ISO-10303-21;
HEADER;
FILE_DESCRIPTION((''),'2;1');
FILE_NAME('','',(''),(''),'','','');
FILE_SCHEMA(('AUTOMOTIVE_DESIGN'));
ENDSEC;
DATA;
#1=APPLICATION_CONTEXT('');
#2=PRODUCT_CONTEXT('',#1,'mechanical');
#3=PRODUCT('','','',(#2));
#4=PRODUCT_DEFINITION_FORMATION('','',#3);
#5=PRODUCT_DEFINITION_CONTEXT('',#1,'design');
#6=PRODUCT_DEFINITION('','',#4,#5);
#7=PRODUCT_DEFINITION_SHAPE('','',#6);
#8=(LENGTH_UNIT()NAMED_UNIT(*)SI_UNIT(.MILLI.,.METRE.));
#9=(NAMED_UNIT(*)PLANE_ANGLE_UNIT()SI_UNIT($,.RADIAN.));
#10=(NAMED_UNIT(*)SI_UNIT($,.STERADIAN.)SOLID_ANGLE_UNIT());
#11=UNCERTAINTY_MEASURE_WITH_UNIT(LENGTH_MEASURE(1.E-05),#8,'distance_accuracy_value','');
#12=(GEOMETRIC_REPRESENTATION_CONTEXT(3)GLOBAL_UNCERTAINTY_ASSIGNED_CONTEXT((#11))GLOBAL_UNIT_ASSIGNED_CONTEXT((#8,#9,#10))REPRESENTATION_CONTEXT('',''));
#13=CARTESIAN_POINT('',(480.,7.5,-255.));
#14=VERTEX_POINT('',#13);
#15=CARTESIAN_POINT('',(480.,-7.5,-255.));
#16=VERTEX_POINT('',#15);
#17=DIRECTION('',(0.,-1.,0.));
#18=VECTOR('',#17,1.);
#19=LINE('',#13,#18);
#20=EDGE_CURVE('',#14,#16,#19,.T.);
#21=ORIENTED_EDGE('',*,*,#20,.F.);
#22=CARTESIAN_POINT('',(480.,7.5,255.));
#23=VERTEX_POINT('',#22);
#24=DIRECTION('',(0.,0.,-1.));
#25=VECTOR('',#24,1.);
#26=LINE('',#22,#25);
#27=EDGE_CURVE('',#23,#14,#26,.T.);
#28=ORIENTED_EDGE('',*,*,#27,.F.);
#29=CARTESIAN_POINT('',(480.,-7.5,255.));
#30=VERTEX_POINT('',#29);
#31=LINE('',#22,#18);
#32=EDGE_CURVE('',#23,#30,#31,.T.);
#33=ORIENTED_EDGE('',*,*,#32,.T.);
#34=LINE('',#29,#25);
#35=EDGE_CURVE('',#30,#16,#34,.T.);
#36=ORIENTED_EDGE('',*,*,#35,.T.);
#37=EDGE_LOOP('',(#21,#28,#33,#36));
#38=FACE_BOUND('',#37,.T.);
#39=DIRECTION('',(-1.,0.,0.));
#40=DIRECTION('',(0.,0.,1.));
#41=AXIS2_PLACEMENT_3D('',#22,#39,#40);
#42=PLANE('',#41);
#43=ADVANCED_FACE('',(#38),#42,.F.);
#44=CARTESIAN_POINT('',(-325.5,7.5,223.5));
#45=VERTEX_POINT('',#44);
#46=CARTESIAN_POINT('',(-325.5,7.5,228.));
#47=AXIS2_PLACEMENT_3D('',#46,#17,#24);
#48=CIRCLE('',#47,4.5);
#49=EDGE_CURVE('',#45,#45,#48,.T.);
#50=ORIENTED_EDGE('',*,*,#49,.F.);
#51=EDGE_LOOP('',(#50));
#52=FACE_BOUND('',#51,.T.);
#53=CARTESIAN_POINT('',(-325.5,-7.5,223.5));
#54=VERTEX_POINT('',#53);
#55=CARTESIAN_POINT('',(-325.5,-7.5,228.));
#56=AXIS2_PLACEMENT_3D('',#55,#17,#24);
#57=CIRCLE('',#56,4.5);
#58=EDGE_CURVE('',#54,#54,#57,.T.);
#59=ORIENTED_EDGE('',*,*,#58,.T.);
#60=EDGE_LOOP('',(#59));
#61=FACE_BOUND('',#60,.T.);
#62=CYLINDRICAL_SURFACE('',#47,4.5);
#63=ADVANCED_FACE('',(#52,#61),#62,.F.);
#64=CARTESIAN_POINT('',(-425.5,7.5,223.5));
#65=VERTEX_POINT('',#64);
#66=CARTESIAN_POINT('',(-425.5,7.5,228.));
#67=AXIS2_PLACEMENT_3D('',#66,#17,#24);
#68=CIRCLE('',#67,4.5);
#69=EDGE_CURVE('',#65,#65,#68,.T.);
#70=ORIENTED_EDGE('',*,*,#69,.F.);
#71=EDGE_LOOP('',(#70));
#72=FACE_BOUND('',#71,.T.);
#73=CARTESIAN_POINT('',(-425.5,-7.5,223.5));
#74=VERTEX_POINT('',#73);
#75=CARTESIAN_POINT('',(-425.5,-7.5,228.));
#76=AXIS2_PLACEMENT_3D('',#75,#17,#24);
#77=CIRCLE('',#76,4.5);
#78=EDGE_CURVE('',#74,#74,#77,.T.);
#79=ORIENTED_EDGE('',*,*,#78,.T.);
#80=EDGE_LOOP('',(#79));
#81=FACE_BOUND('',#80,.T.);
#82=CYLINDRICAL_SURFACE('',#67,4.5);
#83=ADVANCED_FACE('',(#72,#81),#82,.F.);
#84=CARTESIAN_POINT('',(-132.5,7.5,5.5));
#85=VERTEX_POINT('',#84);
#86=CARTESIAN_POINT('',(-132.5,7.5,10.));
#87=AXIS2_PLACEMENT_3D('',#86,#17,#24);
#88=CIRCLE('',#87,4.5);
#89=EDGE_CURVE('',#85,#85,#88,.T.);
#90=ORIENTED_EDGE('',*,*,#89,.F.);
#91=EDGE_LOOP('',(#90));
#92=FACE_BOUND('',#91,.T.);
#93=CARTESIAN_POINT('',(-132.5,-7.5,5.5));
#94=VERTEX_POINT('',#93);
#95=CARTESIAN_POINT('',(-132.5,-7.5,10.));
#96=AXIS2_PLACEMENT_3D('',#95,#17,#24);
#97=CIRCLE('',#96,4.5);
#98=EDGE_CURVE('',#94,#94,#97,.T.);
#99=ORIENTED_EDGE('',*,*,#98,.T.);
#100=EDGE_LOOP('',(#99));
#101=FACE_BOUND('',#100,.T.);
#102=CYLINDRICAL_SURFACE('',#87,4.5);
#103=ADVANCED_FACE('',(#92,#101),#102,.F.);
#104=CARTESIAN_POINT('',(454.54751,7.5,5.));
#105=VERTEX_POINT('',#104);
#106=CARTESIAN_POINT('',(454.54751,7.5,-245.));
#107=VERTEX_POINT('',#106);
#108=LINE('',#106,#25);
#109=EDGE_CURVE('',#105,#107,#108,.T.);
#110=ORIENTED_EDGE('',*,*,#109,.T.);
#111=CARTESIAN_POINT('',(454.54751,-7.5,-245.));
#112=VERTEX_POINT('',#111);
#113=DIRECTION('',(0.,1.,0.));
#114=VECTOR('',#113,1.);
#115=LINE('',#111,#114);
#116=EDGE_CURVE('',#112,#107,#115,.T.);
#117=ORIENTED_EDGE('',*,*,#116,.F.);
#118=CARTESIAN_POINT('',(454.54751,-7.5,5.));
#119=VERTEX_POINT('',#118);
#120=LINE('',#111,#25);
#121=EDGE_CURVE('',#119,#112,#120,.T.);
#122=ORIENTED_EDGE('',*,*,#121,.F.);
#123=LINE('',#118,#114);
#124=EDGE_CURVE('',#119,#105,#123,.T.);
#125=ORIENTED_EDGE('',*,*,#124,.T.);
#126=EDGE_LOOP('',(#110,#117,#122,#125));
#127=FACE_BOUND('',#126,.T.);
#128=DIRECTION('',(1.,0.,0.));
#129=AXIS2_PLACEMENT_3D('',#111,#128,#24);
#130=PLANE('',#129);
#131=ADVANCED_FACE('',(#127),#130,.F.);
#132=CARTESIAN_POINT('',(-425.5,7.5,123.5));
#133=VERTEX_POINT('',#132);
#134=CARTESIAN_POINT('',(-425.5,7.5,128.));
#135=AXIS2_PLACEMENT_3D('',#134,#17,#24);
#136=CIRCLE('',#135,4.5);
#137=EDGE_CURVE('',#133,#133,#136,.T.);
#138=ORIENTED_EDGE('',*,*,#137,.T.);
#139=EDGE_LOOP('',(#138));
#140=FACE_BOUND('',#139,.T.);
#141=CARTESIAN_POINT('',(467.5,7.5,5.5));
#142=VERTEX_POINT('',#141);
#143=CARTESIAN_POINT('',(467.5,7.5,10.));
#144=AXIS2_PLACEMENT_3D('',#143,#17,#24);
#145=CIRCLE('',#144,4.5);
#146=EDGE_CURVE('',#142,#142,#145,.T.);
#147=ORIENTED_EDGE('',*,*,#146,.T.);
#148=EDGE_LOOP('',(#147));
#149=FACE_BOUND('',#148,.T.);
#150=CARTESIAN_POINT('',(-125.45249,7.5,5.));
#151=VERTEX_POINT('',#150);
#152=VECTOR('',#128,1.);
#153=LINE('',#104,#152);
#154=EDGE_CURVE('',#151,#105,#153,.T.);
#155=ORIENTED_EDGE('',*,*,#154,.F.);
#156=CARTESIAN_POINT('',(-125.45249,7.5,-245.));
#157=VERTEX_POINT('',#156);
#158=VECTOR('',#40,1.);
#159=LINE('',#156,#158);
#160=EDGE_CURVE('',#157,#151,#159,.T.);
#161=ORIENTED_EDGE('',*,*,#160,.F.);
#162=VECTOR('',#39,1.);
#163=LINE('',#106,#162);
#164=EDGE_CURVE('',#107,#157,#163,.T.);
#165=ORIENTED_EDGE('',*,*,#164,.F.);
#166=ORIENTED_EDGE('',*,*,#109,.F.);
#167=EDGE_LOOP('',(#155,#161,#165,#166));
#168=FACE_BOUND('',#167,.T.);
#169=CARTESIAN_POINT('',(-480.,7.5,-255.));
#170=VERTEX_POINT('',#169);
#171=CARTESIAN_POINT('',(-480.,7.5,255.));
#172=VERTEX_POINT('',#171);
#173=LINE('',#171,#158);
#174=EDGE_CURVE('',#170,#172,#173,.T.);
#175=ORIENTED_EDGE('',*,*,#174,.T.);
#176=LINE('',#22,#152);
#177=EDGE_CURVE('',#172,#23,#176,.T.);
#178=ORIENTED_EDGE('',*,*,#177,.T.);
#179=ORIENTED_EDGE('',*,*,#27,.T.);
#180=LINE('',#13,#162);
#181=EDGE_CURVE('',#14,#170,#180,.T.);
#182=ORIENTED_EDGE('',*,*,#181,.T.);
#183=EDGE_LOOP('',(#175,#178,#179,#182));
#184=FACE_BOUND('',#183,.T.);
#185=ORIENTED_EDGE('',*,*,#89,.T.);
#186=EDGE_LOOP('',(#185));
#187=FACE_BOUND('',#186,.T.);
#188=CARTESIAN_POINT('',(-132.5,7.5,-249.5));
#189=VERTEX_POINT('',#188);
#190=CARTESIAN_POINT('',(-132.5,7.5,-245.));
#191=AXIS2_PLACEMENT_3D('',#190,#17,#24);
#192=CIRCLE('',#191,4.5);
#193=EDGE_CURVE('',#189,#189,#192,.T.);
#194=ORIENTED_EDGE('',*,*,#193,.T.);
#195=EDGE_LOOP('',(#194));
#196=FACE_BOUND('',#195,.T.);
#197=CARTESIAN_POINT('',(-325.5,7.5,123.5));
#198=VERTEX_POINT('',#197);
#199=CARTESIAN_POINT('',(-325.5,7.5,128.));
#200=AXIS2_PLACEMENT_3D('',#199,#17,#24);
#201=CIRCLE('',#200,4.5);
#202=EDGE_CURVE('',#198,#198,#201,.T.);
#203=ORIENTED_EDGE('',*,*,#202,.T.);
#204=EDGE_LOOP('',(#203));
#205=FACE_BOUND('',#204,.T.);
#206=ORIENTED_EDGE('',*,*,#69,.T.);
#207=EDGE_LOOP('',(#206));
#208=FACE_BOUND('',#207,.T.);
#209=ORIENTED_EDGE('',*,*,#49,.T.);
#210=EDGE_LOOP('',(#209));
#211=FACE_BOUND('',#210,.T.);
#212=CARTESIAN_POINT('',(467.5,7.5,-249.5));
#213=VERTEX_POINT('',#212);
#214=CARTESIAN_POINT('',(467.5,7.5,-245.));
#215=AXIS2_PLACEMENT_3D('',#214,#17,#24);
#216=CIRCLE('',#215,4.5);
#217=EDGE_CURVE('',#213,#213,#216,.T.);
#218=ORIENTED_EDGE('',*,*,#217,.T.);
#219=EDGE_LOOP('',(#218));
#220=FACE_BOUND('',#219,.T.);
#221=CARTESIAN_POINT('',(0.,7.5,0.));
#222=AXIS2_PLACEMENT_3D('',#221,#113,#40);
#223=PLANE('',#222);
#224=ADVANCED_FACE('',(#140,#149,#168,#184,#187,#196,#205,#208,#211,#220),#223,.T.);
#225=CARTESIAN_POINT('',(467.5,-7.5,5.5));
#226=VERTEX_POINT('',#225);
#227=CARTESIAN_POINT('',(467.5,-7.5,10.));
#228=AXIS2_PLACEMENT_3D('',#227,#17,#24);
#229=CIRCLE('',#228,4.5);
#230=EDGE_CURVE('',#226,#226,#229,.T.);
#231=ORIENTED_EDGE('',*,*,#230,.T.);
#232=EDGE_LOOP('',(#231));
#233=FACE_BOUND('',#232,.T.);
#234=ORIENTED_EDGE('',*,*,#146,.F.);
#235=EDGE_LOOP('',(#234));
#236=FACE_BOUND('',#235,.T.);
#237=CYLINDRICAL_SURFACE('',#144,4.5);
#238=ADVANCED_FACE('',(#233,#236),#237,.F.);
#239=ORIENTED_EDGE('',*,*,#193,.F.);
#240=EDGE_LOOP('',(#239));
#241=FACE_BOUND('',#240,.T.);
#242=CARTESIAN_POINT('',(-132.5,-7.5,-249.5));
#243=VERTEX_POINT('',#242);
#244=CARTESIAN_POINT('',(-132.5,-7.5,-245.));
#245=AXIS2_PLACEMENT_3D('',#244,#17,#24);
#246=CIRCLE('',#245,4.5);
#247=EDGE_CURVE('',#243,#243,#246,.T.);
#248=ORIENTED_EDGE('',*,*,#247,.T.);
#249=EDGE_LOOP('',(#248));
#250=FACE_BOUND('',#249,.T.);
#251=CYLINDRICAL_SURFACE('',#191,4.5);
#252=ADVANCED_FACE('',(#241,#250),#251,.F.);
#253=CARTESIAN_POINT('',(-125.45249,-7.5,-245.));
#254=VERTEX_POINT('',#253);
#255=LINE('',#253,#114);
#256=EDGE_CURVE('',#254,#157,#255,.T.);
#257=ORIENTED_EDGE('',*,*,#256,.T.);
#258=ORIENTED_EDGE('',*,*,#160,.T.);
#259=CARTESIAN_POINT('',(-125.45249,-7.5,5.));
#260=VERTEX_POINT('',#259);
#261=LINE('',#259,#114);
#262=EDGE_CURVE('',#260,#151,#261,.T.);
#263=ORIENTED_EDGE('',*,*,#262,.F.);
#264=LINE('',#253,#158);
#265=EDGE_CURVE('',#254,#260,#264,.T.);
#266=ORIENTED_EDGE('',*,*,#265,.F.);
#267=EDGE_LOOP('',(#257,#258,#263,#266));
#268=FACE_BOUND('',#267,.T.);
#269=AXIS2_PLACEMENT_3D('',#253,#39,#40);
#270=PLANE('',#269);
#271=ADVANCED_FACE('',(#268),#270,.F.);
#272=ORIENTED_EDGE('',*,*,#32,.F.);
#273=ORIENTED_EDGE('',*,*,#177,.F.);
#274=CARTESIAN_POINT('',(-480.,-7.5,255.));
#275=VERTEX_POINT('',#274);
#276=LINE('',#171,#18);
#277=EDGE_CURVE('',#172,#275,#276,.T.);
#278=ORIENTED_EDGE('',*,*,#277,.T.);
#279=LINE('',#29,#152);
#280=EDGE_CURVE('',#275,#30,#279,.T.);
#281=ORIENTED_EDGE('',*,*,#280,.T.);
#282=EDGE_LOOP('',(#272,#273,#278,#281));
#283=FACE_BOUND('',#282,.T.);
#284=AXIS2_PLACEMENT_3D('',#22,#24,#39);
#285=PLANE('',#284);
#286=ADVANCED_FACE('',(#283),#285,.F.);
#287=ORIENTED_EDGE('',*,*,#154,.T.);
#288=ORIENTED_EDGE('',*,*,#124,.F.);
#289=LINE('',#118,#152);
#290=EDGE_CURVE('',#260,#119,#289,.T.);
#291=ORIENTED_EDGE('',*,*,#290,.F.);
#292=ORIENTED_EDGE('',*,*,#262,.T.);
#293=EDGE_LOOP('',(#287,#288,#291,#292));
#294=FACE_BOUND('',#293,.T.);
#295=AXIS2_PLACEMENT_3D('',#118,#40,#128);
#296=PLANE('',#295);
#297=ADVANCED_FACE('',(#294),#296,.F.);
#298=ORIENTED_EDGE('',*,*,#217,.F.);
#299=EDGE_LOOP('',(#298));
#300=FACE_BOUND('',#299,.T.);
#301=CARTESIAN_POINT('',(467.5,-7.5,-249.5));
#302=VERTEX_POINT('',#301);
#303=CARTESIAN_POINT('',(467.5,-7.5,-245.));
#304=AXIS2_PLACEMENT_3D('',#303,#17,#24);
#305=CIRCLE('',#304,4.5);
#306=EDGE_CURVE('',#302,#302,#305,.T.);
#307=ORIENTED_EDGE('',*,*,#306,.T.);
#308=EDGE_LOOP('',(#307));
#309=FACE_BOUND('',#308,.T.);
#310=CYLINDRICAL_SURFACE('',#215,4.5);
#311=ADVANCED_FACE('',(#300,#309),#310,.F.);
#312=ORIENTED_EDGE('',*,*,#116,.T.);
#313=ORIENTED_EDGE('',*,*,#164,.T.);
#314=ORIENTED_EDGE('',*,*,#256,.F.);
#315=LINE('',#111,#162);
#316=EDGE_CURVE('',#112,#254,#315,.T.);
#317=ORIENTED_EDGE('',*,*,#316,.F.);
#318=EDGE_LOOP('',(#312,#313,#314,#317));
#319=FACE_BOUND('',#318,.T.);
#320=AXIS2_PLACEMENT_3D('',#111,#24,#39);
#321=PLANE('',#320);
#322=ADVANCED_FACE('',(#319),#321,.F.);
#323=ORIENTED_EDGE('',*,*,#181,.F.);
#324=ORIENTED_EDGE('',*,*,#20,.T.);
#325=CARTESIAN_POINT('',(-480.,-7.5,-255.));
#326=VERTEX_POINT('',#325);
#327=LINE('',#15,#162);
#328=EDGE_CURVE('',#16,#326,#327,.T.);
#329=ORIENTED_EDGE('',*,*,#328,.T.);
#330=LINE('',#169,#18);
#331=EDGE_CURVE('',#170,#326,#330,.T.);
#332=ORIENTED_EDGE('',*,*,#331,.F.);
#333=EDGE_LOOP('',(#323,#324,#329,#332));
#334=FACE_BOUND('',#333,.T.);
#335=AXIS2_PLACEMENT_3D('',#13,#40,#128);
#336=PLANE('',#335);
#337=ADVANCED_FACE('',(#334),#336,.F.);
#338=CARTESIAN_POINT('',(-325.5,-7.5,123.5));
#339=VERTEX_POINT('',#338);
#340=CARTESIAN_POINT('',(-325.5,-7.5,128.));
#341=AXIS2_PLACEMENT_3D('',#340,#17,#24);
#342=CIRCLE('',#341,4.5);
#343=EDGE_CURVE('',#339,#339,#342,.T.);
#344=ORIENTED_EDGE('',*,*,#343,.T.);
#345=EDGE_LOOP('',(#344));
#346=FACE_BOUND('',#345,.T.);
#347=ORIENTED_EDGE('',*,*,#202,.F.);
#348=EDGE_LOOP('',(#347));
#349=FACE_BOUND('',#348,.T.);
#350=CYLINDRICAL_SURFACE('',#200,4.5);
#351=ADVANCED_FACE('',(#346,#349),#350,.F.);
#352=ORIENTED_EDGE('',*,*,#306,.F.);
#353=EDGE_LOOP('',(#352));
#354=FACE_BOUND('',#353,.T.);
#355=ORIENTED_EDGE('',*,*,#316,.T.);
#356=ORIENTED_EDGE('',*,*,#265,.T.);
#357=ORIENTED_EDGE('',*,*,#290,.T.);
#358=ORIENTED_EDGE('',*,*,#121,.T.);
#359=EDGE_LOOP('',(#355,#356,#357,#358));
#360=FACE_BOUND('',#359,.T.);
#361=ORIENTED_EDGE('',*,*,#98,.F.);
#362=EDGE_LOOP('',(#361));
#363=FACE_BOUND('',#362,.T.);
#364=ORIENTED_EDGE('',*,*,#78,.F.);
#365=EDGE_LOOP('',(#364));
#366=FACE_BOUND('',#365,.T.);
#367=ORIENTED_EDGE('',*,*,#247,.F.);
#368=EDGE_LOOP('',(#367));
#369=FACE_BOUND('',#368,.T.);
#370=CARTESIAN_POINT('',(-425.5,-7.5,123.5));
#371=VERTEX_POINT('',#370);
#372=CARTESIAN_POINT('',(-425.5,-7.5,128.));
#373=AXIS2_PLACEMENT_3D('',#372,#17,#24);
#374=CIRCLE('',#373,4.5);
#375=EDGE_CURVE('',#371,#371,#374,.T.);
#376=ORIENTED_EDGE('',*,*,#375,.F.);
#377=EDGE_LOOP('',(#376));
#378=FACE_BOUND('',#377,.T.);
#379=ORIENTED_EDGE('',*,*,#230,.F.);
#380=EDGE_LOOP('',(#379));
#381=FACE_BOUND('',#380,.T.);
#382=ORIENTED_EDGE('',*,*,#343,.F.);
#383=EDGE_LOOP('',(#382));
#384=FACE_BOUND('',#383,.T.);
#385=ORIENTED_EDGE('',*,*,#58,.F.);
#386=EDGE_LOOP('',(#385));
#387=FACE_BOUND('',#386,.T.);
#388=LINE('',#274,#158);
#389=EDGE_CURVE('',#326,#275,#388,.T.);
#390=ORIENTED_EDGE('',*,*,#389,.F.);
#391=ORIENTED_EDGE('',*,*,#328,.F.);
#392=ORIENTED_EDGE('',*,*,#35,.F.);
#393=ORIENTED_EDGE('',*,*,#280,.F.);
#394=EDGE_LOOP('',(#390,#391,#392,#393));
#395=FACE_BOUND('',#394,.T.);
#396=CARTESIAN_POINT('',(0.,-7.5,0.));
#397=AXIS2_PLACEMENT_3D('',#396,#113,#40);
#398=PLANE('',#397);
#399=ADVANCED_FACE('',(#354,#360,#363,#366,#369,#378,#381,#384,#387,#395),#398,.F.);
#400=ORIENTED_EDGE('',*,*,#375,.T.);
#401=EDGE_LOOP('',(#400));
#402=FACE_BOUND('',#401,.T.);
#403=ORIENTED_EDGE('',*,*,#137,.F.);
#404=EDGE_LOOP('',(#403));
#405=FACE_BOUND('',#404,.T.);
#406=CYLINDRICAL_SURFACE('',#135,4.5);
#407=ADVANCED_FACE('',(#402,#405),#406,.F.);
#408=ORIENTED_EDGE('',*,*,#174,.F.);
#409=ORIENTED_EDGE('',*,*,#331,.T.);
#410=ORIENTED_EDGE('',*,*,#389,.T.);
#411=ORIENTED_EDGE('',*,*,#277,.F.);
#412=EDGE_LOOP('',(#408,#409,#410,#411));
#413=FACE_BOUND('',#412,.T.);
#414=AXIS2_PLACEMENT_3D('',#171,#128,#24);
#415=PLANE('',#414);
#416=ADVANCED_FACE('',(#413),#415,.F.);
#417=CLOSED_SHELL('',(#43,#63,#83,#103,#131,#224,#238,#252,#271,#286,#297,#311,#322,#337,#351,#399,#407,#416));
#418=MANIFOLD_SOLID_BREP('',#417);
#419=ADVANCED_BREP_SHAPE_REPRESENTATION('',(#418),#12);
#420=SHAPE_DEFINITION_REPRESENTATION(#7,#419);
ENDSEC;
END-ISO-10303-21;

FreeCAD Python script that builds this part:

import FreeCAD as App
import Part
import Sketcher
from FreeCAD import Vector


def add_polygon(sketch, points):
    """Adds a closed chain of lines whose ends are joined by coincident constraints."""
    first, n = sketch.GeometryCount, len(points)
    for a, b in zip(points, points[1:] + points[:1]):
        sketch.addGeometry(Part.LineSegment(App.Vector(*a, 0), App.Vector(*b, 0)), False)
    for i in range(n):
        sketch.addConstraint(Sketcher.Constraint("Coincident", first + i, 2, first + (i + 1) % n, 1))

doc = App.newDocument("Part")
body = doc.addObject("PartDesign::Body", "Body")

sketch1 = doc.addObject("Sketcher::SketchObject", "Sketch")
body.addObject(sketch1)
sketch1.AttachmentSupport = (doc.XZ_Plane, [""])
sketch1.MapMode = "FlatFace"
add_polygon(sketch1, [(-480, -255), (-480, 255), (480, 255), (480, -255)])
sketch1.addConstraint(Sketcher.Constraint("Vertical", 0))
sketch1.addConstraint(Sketcher.Constraint("Horizontal", 1))
sketch1.addConstraint(Sketcher.Constraint("Vertical", 2))
sketch1.addConstraint(Sketcher.Constraint("Horizontal", 3))
sketch1.addConstraint(Sketcher.Constraint("Symmetric", 0, 2, 2, 2, -1, 1))
sketch1.addConstraint(Sketcher.Constraint("DistanceX", 1, 1, 1, 2, 960.0))
sketch1.addConstraint(Sketcher.Constraint("DistanceY", 0, 1, 0, 2, 510.0))
pad1 = doc.addObject("PartDesign::Pad", "Pad")
body.addObject(pad1)
pad1.Profile = sketch1
pad1.Length = 15
pad1.Midplane = True

sketch2 = doc.addObject("Sketcher::SketchObject", "Sketch001")
body.addObject(sketch2)
sketch2.AttachmentSupport = (doc.XZ_Plane, [""])
sketch2.MapMode = "FlatFace"
sketch2.AttachmentOffset = App.Placement(Vector(0, 0, -7.5), App.Rotation())
add_polygon(sketch2, [(-125, -245), (-125, 5), (455, 5), (455, -245)])
sketch2.addConstraint(Sketcher.Constraint("Vertical", 0))
sketch2.addConstraint(Sketcher.Constraint("Horizontal", 1))
sketch2.addConstraint(Sketcher.Constraint("Vertical", 2))
sketch2.addConstraint(Sketcher.Constraint("Horizontal", 3))
sketch2.addConstraint(Sketcher.Constraint("DistanceX", 1, 1, 1, 2, 580.0))
sketch2.addConstraint(Sketcher.Constraint("DistanceY", 0, 1, 0, 2, 250.0))
sketch2.addConstraint(Sketcher.Constraint("DistanceY", -1, 1, 0, 2, 5.0))
sketch2.addConstraint(Sketcher.Constraint("DistanceX", 0, 2, -1, 1, 125.45249))
pocket1 = doc.addObject("PartDesign::Pocket", "Pocket")
body.addObject(pocket1)
pocket1.Profile = sketch2
pocket1.Type = "ThroughAll"
pocket1.Reversed = True

sketch3 = doc.addObject("Sketcher::SketchObject", "Sketch002")
body.addObject(sketch3)
sketch3.AttachmentSupport = (doc.XZ_Plane, [""])
sketch3.MapMode = "FlatFace"
sketch3.AttachmentOffset = App.Placement(Vector(0, 0, 7.5), App.Rotation())
sketch3.addGeometry(Part.Circle(Vector(-425.5, 228, 0), Vector(0, 0, 1), 4.5), False)
sketch3.addGeometry(Part.Circle(Vector(-425.5, 128, 0), Vector(0, 0, 1), 4.5), False)
sketch3.addGeometry(Part.Circle(Vector(-325.5, 128, 0), Vector(0, 0, 1), 4.5), False)
sketch3.addGeometry(Part.Circle(Vector(-325.5, 228, 0), Vector(0, 0, 1), 4.5), False)
sketch3.addGeometry(Part.Circle(Vector(-132.5, 10, 0), Vector(0, 0, 1), 4.5), False)
sketch3.addGeometry(Part.Circle(Vector(-132.5, -245, 0), Vector(0, 0, 1), 4.5), False)
sketch3.addGeometry(Part.Circle(Vector(467.5, -245, 0), Vector(0, 0, 1), 4.5), False)
sketch3.addGeometry(Part.Circle(Vector(467.5, 10, 0), Vector(0, 0, 1), 4.5), False)
sketch3.addConstraint(Sketcher.Constraint("Equal", 0, 1))
sketch3.addConstraint(Sketcher.Constraint("Equal", 1, 2))
sketch3.addConstraint(Sketcher.Constraint("Equal", 2, 3))
sketch3.addConstraint(Sketcher.Constraint("Equal", 3, 4))
sketch3.addConstraint(Sketcher.Constraint("Equal", 4, 5))
sketch3.addConstraint(Sketcher.Constraint("Equal", 5, 6))
sketch3.addConstraint(Sketcher.Constraint("Equal", 6, 7))
sketch3.addConstraint(Sketcher.Constraint("Horizontal", 1, 3, 2, 3))
sketch3.addConstraint(Sketcher.Constraint("Horizontal", 0, 3, 3, 3))
sketch3.addConstraint(Sketcher.Constraint("Horizontal", 5, 3, 6, 3))
sketch3.addConstraint(Sketcher.Constraint("Horizontal", 4, 3, 7, 3))
sketch3.addConstraint(Sketcher.Constraint("Vertical", 0, 3, 1, 3))
sketch3.addConstraint(Sketcher.Constraint("Vertical", 2, 3, 3, 3))
sketch3.addConstraint(Sketcher.Constraint("Vertical", 4, 3, 5, 3))
sketch3.addConstraint(Sketcher.Constraint("Vertical", 6, 3, 7, 3))
sketch3.addConstraint(Sketcher.Constraint("Diameter", 0, 9.0))
sketch3.addConstraint(Sketcher.Constraint("DistanceY", -1, 1, 0, 3, 228.0))
sketch3.addConstraint(Sketcher.Constraint("DistanceY", -1, 1, 1, 3, 128.0))
sketch3.addConstraint(Sketcher.Constraint("DistanceY", -1, 1, 4, 3, 10.0))
sketch3.addConstraint(Sketcher.Constraint("DistanceY", 5, 3, -1, 1, 245.0))
sketch3.addConstraint(Sketcher.Constraint("DistanceX", 1, 3, 2, 3, 100.0))
sketch3.addConstraint(Sketcher.Constraint("DistanceX", 2, 3, 4, 3, 193.0))
sketch3.addConstraint(Sketcher.Constraint("DistanceX", 5, 3, 6, 3, 600.0))
sketch3.addConstraint(Sketcher.Constraint("DistanceX", 0, 3, -1, 1, 425.5))
pocket2 = doc.addObject("PartDesign::Pocket", "Pocket001")
body.addObject(pocket2)
pocket2.Profile = sketch3
pocket2.Type = "ThroughAll"

doc.recompute()
